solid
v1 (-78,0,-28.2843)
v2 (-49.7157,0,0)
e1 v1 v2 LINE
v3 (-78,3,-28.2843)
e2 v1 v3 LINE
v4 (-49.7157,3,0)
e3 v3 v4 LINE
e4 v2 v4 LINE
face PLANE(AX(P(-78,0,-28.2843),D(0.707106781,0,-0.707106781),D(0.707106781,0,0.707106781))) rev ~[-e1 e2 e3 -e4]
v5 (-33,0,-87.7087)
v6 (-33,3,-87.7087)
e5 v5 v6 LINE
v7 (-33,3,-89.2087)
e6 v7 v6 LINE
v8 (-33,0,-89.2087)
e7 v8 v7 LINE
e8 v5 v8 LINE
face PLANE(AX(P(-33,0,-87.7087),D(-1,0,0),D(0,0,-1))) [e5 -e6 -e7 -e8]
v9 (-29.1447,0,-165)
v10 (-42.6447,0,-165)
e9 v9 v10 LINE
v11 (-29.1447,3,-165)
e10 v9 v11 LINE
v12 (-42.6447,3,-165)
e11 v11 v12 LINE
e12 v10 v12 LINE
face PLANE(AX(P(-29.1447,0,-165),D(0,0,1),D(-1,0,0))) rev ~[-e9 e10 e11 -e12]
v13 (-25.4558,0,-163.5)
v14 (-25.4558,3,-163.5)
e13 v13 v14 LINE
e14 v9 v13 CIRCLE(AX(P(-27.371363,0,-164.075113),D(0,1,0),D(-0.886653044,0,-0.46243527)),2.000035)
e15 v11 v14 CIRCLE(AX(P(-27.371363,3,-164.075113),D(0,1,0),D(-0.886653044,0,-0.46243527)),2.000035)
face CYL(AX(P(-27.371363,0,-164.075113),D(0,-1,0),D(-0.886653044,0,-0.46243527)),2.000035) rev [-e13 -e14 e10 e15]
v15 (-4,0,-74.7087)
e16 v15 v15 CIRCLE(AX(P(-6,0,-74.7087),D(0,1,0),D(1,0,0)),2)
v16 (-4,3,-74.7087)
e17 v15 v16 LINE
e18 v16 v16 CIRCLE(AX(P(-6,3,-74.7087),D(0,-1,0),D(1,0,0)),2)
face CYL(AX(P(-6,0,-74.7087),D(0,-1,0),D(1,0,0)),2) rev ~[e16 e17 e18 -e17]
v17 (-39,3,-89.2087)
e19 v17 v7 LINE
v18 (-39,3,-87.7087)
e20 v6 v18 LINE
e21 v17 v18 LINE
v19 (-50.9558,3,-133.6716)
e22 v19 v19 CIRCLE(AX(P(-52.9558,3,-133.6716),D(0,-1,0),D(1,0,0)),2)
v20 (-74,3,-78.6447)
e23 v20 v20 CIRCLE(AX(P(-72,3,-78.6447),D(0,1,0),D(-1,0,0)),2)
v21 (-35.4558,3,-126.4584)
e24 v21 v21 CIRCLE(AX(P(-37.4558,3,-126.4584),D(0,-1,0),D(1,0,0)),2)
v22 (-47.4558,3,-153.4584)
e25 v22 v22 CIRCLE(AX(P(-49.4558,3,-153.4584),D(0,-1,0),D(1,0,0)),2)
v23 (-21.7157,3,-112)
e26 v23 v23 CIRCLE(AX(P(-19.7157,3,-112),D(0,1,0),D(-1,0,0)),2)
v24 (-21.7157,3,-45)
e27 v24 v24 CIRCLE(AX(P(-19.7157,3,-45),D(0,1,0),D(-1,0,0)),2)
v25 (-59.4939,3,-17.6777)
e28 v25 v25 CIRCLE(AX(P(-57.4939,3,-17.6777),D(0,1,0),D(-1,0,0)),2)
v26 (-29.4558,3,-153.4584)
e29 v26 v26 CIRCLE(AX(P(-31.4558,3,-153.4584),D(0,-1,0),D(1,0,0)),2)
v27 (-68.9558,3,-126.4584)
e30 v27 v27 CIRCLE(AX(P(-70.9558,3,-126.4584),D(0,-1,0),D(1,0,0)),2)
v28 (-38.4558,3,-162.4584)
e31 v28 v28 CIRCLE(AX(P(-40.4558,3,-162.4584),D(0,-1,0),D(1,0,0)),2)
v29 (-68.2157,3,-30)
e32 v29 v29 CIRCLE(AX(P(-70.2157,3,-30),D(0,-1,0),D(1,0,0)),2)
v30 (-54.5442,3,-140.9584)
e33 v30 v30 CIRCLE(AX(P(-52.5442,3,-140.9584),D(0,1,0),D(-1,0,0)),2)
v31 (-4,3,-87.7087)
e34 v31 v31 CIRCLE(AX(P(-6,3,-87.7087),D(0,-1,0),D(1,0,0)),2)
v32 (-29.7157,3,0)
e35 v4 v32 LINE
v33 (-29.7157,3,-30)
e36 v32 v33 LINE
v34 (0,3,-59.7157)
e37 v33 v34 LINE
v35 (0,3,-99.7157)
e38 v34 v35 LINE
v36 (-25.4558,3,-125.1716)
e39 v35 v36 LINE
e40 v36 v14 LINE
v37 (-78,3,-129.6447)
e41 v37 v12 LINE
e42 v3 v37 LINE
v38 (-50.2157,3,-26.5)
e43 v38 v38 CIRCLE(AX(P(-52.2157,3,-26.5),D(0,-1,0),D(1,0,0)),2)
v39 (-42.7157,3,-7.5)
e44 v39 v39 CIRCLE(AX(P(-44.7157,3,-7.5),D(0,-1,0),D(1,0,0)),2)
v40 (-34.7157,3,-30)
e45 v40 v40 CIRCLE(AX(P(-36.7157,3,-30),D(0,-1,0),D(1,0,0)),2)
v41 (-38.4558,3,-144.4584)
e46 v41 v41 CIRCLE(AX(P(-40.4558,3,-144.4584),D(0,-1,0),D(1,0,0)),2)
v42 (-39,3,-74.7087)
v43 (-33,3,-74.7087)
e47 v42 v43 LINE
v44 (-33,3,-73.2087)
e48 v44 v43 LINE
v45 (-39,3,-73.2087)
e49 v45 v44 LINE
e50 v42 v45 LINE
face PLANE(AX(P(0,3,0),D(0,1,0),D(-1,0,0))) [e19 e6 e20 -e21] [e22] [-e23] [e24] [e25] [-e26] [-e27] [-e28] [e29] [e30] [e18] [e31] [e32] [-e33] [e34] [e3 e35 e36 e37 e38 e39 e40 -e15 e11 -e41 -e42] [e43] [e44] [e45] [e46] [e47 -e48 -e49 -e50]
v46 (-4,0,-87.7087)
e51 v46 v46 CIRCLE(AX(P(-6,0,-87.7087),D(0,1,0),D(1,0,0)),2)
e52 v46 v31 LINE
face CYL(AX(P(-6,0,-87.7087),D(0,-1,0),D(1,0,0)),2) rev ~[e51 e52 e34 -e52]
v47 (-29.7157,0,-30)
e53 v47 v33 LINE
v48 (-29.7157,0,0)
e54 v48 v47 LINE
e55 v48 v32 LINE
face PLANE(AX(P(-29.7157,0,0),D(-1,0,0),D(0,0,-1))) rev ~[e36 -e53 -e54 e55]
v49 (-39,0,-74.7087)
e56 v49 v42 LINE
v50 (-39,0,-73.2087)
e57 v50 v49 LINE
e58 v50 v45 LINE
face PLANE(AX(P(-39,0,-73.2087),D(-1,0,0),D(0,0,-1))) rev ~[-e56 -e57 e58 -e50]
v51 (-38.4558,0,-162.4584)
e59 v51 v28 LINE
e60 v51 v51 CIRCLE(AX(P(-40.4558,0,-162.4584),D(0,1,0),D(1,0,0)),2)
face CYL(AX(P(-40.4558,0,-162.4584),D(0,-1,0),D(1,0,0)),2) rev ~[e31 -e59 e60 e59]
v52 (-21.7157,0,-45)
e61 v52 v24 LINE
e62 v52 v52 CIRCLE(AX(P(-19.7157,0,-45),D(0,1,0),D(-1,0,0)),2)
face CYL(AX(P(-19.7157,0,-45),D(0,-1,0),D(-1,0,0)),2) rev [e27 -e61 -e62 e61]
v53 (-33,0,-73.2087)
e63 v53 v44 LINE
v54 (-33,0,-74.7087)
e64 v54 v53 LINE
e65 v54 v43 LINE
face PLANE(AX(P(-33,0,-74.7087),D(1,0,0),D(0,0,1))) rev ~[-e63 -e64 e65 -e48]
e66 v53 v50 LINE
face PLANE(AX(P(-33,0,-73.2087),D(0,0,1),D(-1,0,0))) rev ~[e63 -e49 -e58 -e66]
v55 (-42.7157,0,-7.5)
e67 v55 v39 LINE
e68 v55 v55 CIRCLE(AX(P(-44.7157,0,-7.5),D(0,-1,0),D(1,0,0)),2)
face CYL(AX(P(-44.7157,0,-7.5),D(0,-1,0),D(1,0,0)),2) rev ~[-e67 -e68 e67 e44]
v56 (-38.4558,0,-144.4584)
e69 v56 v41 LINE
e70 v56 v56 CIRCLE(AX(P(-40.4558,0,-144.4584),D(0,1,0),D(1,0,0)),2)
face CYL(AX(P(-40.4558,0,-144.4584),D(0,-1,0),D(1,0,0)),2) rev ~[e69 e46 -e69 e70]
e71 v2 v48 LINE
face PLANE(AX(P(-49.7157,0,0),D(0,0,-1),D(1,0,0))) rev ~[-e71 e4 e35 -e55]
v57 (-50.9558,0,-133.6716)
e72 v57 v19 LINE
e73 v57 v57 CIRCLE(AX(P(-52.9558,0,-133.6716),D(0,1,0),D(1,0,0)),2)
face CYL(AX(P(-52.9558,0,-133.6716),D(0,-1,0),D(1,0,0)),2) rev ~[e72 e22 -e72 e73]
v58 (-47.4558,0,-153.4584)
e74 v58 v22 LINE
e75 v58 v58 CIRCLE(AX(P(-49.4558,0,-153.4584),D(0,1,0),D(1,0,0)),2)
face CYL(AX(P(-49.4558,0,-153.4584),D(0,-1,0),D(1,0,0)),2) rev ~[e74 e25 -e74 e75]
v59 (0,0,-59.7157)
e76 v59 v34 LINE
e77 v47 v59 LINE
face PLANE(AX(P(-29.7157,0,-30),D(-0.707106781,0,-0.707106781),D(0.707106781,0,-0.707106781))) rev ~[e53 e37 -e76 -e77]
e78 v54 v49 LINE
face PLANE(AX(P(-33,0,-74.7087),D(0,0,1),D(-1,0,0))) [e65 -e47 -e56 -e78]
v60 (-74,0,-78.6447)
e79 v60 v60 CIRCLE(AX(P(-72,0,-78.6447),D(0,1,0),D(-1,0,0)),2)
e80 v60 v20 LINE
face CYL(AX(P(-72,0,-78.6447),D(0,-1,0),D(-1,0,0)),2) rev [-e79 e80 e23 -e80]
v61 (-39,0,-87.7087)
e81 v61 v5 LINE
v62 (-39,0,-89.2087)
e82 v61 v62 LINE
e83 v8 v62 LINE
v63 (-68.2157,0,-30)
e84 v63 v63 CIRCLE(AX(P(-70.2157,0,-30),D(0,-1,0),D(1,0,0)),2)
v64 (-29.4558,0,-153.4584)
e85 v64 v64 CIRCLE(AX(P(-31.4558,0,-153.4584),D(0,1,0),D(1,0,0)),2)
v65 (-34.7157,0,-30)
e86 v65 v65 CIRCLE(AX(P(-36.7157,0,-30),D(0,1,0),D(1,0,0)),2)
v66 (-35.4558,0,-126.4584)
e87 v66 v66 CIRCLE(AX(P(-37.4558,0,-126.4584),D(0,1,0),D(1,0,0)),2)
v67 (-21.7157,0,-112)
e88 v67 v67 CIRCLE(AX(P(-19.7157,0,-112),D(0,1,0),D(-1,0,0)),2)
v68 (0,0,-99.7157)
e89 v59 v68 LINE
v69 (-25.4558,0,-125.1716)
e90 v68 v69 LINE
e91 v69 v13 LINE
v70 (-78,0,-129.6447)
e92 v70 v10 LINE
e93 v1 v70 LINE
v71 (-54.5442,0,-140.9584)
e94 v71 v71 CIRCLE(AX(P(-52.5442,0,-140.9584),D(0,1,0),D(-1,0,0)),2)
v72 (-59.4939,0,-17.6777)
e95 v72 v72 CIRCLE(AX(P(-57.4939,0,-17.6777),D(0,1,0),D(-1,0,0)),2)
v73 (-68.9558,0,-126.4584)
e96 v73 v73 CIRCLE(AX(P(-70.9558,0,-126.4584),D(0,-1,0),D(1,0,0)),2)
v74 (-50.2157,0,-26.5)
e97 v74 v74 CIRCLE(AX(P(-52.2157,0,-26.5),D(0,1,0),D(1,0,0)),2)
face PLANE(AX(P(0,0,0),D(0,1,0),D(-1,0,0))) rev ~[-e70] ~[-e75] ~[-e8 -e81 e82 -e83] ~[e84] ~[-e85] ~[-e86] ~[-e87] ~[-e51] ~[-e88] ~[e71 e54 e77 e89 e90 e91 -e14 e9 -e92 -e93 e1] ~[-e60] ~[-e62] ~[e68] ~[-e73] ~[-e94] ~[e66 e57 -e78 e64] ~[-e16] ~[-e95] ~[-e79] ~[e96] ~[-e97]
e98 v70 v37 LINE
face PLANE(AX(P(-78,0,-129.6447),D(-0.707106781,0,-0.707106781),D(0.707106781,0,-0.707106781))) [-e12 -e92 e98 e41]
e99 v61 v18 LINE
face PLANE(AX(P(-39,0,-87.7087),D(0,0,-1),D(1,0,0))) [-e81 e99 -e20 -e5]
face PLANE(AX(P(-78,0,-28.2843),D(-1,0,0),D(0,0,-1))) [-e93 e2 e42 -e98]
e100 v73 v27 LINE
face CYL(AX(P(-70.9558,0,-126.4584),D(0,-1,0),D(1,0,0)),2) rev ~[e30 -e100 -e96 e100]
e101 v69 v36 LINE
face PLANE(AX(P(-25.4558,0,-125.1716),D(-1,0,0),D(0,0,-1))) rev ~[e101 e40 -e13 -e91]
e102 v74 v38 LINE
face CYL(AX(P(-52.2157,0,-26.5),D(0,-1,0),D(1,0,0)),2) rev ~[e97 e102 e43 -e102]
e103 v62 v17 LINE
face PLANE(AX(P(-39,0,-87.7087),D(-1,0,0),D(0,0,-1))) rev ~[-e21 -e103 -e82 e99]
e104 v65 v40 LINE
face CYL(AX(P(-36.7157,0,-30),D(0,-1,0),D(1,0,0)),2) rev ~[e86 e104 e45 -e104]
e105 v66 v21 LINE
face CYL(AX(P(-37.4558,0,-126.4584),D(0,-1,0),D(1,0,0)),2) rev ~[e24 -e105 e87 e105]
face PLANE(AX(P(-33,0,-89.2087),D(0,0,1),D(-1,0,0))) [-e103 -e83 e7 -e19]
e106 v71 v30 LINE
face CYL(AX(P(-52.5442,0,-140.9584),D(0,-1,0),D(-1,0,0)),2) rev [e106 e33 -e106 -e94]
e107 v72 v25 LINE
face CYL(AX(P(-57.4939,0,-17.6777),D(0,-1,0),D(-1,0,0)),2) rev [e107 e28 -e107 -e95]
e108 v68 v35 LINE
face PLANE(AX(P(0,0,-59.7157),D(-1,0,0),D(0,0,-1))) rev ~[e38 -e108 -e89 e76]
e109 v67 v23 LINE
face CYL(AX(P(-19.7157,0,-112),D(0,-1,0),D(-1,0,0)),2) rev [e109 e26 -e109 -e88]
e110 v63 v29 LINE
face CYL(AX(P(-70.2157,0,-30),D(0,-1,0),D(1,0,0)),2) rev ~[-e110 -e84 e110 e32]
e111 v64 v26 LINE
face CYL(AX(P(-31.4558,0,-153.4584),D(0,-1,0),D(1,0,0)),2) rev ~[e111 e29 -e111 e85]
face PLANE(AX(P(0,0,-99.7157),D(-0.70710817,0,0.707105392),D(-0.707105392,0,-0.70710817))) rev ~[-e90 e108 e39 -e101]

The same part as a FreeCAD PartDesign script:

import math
import FreeCAD as App
import Part
import Sketcher

V = App.Vector
Q = App.Units.Quantity


def add_polygon(sketch, points):
    """Adds a closed chain of lines whose ends are joined by coincident constraints."""
    first, n = sketch.GeometryCount, len(points)
    for a, b in zip(points, points[1:] + points[:1]):
        sketch.addGeometry(Part.LineSegment(App.Vector(*a, 0), App.Vector(*b, 0)), False)
    for i in range(n):
        sketch.addConstraint(Sketcher.Constraint("Coincident", first + i, 2, first + (i + 1) % n, 1))

doc = App.newDocument("Part")
params = doc.addObject("Spreadsheet::Sheet", "Params")
for row, (alias, value) in enumerate([
    ("sketch1_diameter", "4 mm"),
    ("sketch1_width", "20 mm"),
    ("sketch1_height", "30 mm"),
    ("sketch1_height2", "40 mm"),
    ("sketch1_length", "40 mm"),
    ("pad1_length", "3 mm"),
    ("sketch2_diameter", "4 mm"),
    ("sketch2_width", "6 mm"),
    ("sketch2_height", "1.5 mm"),
    ("pocket1_length", "10 mm"),
], start=1):
    params.set(f"A{row}", alias)
    params.set(f"B{row}", "=" + value)
    params.setAlias(f"B{row}", alias)

body = doc.addObject("PartDesign::Body", "Body")

# Sketch on XZ plane
sketch1 = doc.addObject("Sketcher::SketchObject", "Sketch")
body.addObject(sketch1)
sketch1.AttachmentSupport = (doc.XZ_Plane, [""])
sketch1.MapMode = "FlatFace"
sketch1.addGeometry([
    Part.LineSegment(V(-78, -129.6, 0), V(-78, -28.3, 0)),  # 0
    Part.LineSegment(V(-78, -28.3, 0), V(-49.7, 0, 0)),  # 1
    Part.LineSegment(V(-49.7, 0, 0), V(-29.7, 0, 0)),  # 2
    Part.LineSegment(V(-29.7, 0, 0), V(-29.7, -30, 0)),  # 3
    Part.LineSegment(V(-29.7, -30, 0), V(0, -59.7, 0)),  # 4
    Part.LineSegment(V(0, -59.7, 0), V(0, -99.7, 0)),  # 5
    Part.LineSegment(V(0, -99.7, 0), V(-25.5, -125.2, 0)),  # 6
    Part.LineSegment(V(-25.5, -125.2, 0), V(-25.5, -163.5, 0)),  # 7
    Part.ArcOfCircle(Part.Circle(V(-27.4, -164.1, 0), V(0, 0, 1), 2), math.radians(17), math.radians(208)),  # 8
    Part.LineSegment(V(-29.1, -165, 0), V(-42.6, -165, 0)),  # 9
    Part.LineSegment(V(-42.6, -165, 0), V(-78, -129.6, 0)),  # 10
    Part.Circle(V(-19.7, -112, 0), V(0, 0, 1), 2),  # 11
    Part.Circle(V(-52.5, -141, 0), V(0, 0, 1), 2),  # 12
    Part.Circle(V(-19.7, -45, 0), V(0, 0, 1), 2),  # 13
    Part.Circle(V(-72, -78.6, 0), V(0, 0, 1), 2),  # 14
    Part.Circle(V(-57.5, -17.7, 0), V(0, 0, 1), 2),  # 15
], False)
sketch1.addConstraint([
    Sketcher.Constraint("Coincident", 0, 2, 1, 1),
    Sketcher.Constraint("Coincident", 1, 2, 2, 1),
    Sketcher.Constraint("Coincident", 2, 2, 3, 1),
    Sketcher.Constraint("Coincident", 3, 2, 4, 1),
    Sketcher.Constraint("Coincident", 4, 2, 5, 1),
    Sketcher.Constraint("Coincident", 5, 2, 6, 1),
    Sketcher.Constraint("Coincident", 6, 2, 7, 1),
    Sketcher.Constraint("Coincident", 7, 2, 8, 1),
    Sketcher.Constraint("Coincident", 8, 2, 9, 1),
    Sketcher.Constraint("Coincident", 9, 2, 10, 1),
    Sketcher.Constraint("Coincident", 10, 2, 0, 1),
    Sketcher.Constraint("Vertical", 0),
    Sketcher.Constraint("Horizontal", 2),
    Sketcher.Constraint("Vertical", 3),
    Sketcher.Constraint("Vertical", 5),
    Sketcher.Constraint("Vertical", 7),
    Sketcher.Constraint("Horizontal", 9),
    Sketcher.Constraint("Equal", 8, 11),
    Sketcher.Constraint("Equal", 11, 12),
    Sketcher.Constraint("Equal", 12, 13),
    Sketcher.Constraint("Equal", 13, 14),
    Sketcher.Constraint("Equal", 14, 15),
    Sketcher.Constraint("PointOnObject", 1, 2, -1),
    Sketcher.Constraint("PointOnObject", 4, 2, -2),
    Sketcher.Constraint("Perpendicular", 1, 4),
    Sketcher.Constraint("Perpendicular", 4, 6),
    Sketcher.Constraint("Perpendicular", 6, 10),
    Sketcher.Constraint("Vertical", 11, 3, 13, 3),
    Sketcher.Constraint("Diameter", 11, Q("4 mm")),
    Sketcher.Constraint("DistanceX", 2, 1, 2, 2, Q("20 mm")),
    Sketcher.Constraint("DistanceY", 3, 2, 3, 1, Q("30 mm")),
    Sketcher.Constraint("DistanceY", 5, 2, 5, 1, Q("40 mm")),
    Sketcher.Constraint("Angle", 1, Q("45 deg")),
    Sketcher.Constraint("Distance", 1, Q("40 mm")),
    Sketcher.Constraint("Distance", 6, Q("36 mm")),
    Sketcher.Constraint("DistanceX", 9, 2, 9, 1, Q("13.5 mm")),
    Sketcher.Constraint("DistanceY", 13, 3, -1, 1, Q("45 mm")),
    Sketcher.Constraint("DistanceX", 1, 2, 13, 3, Q("30 mm")),
    Sketcher.Constraint("Distance", 10, Q("50 mm")),
    Sketcher.Constraint("DistanceY", 11, 3, -1, 1, Q("112 mm")),
    Sketcher.Constraint("DistanceX", 14, 3, -1, 1, Q("72 mm")),
    Sketcher.Constraint("DistanceX", 0, 2, -1, 1, Q("78 mm")),
    Sketcher.Constraint("DistanceY", 8, 2, -1, 1, Q("165 mm")),
    Sketcher.Constraint("DistanceY", 10, 2, 14, 3, Q("51 mm")),
    Sketcher.Constraint("DistanceY", 7, 2, -1, 1, Q("163.5 mm")),
    Sketcher.Constraint("DistanceX", 15, 3, -1, 1, Q("57.494 mm")),
    Sketcher.Constraint("DistanceY", 14, 3, 15, 3, Q("60.967 mm")),
    Sketcher.Constraint("DistanceY", 12, 3, 0, 2, Q("112.674 mm")),
    Sketcher.Constraint("DistanceX", 12, 3, -1, 1, Q("52.5442 mm")),
])
sketch1.setExpression("Constraints[28]", "Params.sketch1_diameter")
sketch1.setExpression("Constraints[29]", "Params.sketch1_width")
sketch1.setExpression("Constraints[30]", "Params.sketch1_height")
sketch1.setExpression("Constraints[31]", "Params.sketch1_height2")
sketch1.setExpression("Constraints[33]", "Params.sketch1_length")
pad1 = doc.addObject("PartDesign::Pad", "Pad")
body.addObject(pad1)
pad1.Profile = sketch1
pad1.setExpression("Length", "Params.pad1_length")
pad1.Reversed = True

# Sketch on XZ plane
sketch2 = doc.addObject("Sketcher::SketchObject", "Sketch001")
body.addObject(sketch2)
sketch2.AttachmentSupport = (doc.XZ_Plane, [""])
sketch2.MapMode = "FlatFace"
sketch2.addGeometry(Part.Circle(V(-44.7, -7.5, 0), V(0, 0, 1), 2), False)  # 0
sketch2.addGeometry(Part.Circle(V(-36.7, -30, 0), V(0, 0, 1), 2), False)  # 1
sketch2.addGeometry(Part.Circle(V(-70.2, -30, 0), V(0, 0, 1), 2), False)  # 2
sketch2.addGeometry(Part.Circle(V(-52.2, -26.5, 0), V(0, 0, 1), 2), False)  # 3
sketch2.addGeometry(Part.Circle(V(-6, -74.7, 0), V(0, 0, 1), 2), False)  # 4
sketch2.addGeometry(Part.Circle(V(-6, -87.7, 0), V(0, 0, 1), 2), False)  # 5
add_polygon(sketch2, [(-39, -74.7), (-33, -74.7), (-33, -73.2), (-39, -73.2)])  # lines 6-9
add_polygon(sketch2, [(-33, -89.2), (-33, -87.7), (-39, -87.7), (-39, -89.2)])  # lines 10-13
sketch2.addGeometry(Part.Circle(V(-31.5, -153.5, 0), V(0, 0, 1), 2), False)  # 14
sketch2.addGeometry(Part.Circle(V(-40.5, -162.5, 0), V(0, 0, 1), 2), False)  # 15
sketch2.addGeometry(Part.Circle(V(-71, -126.5, 0), V(0, 0, 1), 2), False)  # 16
sketch2.addGeometry(Part.Circle(V(-37.5, -126.5, 0), V(0, 0, 1), 2), False)  # 17
sketch2.addGeometry(Part.Circle(V(-49.5, -153.5, 0), V(0, 0, 1), 2), False)  # 18
sketch2.addGeometry(Part.Circle(V(-40.5, -144.5, 0), V(0, 0, 1), 2), False)  # 19
sketch2.addGeometry(Part.Circle(V(-53, -133.7, 0), V(0, 0, 1), 2), False)  # 20
sketch2.addConstraint([
    Sketcher.Constraint("Horizontal", 6),
    Sketcher.Constraint("Vertical", 7),
    Sketcher.Constraint("Horizontal", 8),
    Sketcher.Constraint("Vertical", 9),
    Sketcher.Constraint("Vertical", 10),
    Sketcher.Constraint("Horizontal", 11),
    Sketcher.Constraint("Vertical", 12),
    Sketcher.Constraint("Horizontal", 13),
    Sketcher.Constraint("Equal", 0, 1),
    Sketcher.Constraint("Equal", 1, 2),
    Sketcher.Constraint("Equal", 2, 3),
    Sketcher.Constraint("Equal", 3, 4),
    Sketcher.Constraint("Equal", 4, 5),
    Sketcher.Constraint("Equal", 5, 14),
    Sketcher.Constraint("Equal", 14, 15),
    Sketcher.Constraint("Equal", 15, 16),
    Sketcher.Constraint("Equal", 16, 17),
    Sketcher.Constraint("Equal", 17, 18),
    Sketcher.Constraint("Equal", 18, 19),
    Sketcher.Constraint("Equal", 19, 20),
    Sketcher.Constraint("Horizontal", 1, 3, 2, 3),
    Sketcher.Constraint("Horizontal", 16, 3, 17, 3),
    Sketcher.Constraint("Horizontal", 14, 3, 18, 3),
    Sketcher.Constraint("Horizontal", 4, 3, 6, 2),
    Sketcher.Constraint("Horizontal", 5, 3, 10, 2),
    Sketcher.Constraint("Vertical", 4, 3, 5, 3),
    Sketcher.Constraint("Vertical", 15, 3, 19, 3),
    Sketcher.Constraint("Vertical", 7, 2, 10, 2),
    Sketcher.Constraint("Vertical", 9, 2, 11, 2),
    Sketcher.Constraint("Equal", 9, 10),
    Sketcher.Constraint("Diameter", 0, Q("4 mm")),
    Sketcher.Constraint("DistanceX", 6, 1, 6, 2, Q("6 mm")),
    Sketcher.Constraint("DistanceY", 7, 1, 7, 2, Q("1.5 mm")),
    Sketcher.Constraint("DistanceX", 4, 3, -1, 1, Q("6 mm")),
    Sketcher.Constraint("DistanceX", 6, 2, -1, 1, Q("33 mm")),
    Sketcher.Constraint("DistanceX", 0, 3, 1, 3, Q("8 mm")),
    Sketcher.Constraint("DistanceY", 5, 3, 4, 3, Q("13 mm")),
    Sketcher.Constraint("DistanceX", 17, 3, 14, 3, Q("6 mm")),
    Sketcher.Constraint("DistanceX", 15, 3, 17, 3, Q("3 mm")),
    Sketcher.Constraint("DistanceX", 2, 3, 1, 3, Q("33.5 mm")),
    Sketcher.Constraint("DistanceX", 3, 3, 1, 3, Q("15.5 mm")),
    Sketcher.Constraint("DistanceY", 1, 3, 3, 3, Q("3.5 mm")),
    Sketcher.Constraint("DistanceX", 16, 3, 17, 3, Q("33.5 mm")),
    Sketcher.Constraint("DistanceX", 20, 3, 19, 3, Q("12.5 mm")),
    Sketcher.Constraint("DistanceX", 20, 3, 18, 3, Q("3.5 mm")),
    Sketcher.Constraint("DistanceY", 1, 3, -1, 1, Q("30 mm")),
    Sketcher.Constraint("DistanceY", 3, 3, 0, 3, Q("19 mm")),
    Sketcher.Constraint("DistanceY", 15, 3, 14, 3, Q("9 mm")),
    Sketcher.Constraint("DistanceY", 15, 3, 16, 3, Q("36 mm")),
    Sketcher.Constraint("DistanceY", 18, 3, 19, 3, Q("9 mm")),
    Sketcher.Constraint("DistanceX", 1, 3, 14, 3, Q("5.26 mm")),
    Sketcher.Constraint("DistanceX", 0, 3, -1, 1, Q("44.7157 mm")),
    Sketcher.Constraint("DistanceY", 4, 3, -1, 1, Q("74.7087 mm")),
    Sketcher.Constraint("DistanceY", 14, 3, -1, 1, Q("153.4584 mm")),
    Sketcher.Constraint("DistanceY", 20, 3, -1, 1, Q("133.6716 mm")),
])
sketch2.setExpression("Constraints[38]", "Params.sketch2_diameter")
sketch2.setExpression("Constraints[39]", "Params.sketch2_width")
sketch2.setExpression("Constraints[40]", "Params.sketch2_height")
pocket1 = doc.addObject("PartDesign::Pocket", "Pocket")
body.addObject(pocket1)
pocket1.Profile = sketch2
pocket1.setExpression("Length", "Params.pocket1_length")

doc.recompute()
